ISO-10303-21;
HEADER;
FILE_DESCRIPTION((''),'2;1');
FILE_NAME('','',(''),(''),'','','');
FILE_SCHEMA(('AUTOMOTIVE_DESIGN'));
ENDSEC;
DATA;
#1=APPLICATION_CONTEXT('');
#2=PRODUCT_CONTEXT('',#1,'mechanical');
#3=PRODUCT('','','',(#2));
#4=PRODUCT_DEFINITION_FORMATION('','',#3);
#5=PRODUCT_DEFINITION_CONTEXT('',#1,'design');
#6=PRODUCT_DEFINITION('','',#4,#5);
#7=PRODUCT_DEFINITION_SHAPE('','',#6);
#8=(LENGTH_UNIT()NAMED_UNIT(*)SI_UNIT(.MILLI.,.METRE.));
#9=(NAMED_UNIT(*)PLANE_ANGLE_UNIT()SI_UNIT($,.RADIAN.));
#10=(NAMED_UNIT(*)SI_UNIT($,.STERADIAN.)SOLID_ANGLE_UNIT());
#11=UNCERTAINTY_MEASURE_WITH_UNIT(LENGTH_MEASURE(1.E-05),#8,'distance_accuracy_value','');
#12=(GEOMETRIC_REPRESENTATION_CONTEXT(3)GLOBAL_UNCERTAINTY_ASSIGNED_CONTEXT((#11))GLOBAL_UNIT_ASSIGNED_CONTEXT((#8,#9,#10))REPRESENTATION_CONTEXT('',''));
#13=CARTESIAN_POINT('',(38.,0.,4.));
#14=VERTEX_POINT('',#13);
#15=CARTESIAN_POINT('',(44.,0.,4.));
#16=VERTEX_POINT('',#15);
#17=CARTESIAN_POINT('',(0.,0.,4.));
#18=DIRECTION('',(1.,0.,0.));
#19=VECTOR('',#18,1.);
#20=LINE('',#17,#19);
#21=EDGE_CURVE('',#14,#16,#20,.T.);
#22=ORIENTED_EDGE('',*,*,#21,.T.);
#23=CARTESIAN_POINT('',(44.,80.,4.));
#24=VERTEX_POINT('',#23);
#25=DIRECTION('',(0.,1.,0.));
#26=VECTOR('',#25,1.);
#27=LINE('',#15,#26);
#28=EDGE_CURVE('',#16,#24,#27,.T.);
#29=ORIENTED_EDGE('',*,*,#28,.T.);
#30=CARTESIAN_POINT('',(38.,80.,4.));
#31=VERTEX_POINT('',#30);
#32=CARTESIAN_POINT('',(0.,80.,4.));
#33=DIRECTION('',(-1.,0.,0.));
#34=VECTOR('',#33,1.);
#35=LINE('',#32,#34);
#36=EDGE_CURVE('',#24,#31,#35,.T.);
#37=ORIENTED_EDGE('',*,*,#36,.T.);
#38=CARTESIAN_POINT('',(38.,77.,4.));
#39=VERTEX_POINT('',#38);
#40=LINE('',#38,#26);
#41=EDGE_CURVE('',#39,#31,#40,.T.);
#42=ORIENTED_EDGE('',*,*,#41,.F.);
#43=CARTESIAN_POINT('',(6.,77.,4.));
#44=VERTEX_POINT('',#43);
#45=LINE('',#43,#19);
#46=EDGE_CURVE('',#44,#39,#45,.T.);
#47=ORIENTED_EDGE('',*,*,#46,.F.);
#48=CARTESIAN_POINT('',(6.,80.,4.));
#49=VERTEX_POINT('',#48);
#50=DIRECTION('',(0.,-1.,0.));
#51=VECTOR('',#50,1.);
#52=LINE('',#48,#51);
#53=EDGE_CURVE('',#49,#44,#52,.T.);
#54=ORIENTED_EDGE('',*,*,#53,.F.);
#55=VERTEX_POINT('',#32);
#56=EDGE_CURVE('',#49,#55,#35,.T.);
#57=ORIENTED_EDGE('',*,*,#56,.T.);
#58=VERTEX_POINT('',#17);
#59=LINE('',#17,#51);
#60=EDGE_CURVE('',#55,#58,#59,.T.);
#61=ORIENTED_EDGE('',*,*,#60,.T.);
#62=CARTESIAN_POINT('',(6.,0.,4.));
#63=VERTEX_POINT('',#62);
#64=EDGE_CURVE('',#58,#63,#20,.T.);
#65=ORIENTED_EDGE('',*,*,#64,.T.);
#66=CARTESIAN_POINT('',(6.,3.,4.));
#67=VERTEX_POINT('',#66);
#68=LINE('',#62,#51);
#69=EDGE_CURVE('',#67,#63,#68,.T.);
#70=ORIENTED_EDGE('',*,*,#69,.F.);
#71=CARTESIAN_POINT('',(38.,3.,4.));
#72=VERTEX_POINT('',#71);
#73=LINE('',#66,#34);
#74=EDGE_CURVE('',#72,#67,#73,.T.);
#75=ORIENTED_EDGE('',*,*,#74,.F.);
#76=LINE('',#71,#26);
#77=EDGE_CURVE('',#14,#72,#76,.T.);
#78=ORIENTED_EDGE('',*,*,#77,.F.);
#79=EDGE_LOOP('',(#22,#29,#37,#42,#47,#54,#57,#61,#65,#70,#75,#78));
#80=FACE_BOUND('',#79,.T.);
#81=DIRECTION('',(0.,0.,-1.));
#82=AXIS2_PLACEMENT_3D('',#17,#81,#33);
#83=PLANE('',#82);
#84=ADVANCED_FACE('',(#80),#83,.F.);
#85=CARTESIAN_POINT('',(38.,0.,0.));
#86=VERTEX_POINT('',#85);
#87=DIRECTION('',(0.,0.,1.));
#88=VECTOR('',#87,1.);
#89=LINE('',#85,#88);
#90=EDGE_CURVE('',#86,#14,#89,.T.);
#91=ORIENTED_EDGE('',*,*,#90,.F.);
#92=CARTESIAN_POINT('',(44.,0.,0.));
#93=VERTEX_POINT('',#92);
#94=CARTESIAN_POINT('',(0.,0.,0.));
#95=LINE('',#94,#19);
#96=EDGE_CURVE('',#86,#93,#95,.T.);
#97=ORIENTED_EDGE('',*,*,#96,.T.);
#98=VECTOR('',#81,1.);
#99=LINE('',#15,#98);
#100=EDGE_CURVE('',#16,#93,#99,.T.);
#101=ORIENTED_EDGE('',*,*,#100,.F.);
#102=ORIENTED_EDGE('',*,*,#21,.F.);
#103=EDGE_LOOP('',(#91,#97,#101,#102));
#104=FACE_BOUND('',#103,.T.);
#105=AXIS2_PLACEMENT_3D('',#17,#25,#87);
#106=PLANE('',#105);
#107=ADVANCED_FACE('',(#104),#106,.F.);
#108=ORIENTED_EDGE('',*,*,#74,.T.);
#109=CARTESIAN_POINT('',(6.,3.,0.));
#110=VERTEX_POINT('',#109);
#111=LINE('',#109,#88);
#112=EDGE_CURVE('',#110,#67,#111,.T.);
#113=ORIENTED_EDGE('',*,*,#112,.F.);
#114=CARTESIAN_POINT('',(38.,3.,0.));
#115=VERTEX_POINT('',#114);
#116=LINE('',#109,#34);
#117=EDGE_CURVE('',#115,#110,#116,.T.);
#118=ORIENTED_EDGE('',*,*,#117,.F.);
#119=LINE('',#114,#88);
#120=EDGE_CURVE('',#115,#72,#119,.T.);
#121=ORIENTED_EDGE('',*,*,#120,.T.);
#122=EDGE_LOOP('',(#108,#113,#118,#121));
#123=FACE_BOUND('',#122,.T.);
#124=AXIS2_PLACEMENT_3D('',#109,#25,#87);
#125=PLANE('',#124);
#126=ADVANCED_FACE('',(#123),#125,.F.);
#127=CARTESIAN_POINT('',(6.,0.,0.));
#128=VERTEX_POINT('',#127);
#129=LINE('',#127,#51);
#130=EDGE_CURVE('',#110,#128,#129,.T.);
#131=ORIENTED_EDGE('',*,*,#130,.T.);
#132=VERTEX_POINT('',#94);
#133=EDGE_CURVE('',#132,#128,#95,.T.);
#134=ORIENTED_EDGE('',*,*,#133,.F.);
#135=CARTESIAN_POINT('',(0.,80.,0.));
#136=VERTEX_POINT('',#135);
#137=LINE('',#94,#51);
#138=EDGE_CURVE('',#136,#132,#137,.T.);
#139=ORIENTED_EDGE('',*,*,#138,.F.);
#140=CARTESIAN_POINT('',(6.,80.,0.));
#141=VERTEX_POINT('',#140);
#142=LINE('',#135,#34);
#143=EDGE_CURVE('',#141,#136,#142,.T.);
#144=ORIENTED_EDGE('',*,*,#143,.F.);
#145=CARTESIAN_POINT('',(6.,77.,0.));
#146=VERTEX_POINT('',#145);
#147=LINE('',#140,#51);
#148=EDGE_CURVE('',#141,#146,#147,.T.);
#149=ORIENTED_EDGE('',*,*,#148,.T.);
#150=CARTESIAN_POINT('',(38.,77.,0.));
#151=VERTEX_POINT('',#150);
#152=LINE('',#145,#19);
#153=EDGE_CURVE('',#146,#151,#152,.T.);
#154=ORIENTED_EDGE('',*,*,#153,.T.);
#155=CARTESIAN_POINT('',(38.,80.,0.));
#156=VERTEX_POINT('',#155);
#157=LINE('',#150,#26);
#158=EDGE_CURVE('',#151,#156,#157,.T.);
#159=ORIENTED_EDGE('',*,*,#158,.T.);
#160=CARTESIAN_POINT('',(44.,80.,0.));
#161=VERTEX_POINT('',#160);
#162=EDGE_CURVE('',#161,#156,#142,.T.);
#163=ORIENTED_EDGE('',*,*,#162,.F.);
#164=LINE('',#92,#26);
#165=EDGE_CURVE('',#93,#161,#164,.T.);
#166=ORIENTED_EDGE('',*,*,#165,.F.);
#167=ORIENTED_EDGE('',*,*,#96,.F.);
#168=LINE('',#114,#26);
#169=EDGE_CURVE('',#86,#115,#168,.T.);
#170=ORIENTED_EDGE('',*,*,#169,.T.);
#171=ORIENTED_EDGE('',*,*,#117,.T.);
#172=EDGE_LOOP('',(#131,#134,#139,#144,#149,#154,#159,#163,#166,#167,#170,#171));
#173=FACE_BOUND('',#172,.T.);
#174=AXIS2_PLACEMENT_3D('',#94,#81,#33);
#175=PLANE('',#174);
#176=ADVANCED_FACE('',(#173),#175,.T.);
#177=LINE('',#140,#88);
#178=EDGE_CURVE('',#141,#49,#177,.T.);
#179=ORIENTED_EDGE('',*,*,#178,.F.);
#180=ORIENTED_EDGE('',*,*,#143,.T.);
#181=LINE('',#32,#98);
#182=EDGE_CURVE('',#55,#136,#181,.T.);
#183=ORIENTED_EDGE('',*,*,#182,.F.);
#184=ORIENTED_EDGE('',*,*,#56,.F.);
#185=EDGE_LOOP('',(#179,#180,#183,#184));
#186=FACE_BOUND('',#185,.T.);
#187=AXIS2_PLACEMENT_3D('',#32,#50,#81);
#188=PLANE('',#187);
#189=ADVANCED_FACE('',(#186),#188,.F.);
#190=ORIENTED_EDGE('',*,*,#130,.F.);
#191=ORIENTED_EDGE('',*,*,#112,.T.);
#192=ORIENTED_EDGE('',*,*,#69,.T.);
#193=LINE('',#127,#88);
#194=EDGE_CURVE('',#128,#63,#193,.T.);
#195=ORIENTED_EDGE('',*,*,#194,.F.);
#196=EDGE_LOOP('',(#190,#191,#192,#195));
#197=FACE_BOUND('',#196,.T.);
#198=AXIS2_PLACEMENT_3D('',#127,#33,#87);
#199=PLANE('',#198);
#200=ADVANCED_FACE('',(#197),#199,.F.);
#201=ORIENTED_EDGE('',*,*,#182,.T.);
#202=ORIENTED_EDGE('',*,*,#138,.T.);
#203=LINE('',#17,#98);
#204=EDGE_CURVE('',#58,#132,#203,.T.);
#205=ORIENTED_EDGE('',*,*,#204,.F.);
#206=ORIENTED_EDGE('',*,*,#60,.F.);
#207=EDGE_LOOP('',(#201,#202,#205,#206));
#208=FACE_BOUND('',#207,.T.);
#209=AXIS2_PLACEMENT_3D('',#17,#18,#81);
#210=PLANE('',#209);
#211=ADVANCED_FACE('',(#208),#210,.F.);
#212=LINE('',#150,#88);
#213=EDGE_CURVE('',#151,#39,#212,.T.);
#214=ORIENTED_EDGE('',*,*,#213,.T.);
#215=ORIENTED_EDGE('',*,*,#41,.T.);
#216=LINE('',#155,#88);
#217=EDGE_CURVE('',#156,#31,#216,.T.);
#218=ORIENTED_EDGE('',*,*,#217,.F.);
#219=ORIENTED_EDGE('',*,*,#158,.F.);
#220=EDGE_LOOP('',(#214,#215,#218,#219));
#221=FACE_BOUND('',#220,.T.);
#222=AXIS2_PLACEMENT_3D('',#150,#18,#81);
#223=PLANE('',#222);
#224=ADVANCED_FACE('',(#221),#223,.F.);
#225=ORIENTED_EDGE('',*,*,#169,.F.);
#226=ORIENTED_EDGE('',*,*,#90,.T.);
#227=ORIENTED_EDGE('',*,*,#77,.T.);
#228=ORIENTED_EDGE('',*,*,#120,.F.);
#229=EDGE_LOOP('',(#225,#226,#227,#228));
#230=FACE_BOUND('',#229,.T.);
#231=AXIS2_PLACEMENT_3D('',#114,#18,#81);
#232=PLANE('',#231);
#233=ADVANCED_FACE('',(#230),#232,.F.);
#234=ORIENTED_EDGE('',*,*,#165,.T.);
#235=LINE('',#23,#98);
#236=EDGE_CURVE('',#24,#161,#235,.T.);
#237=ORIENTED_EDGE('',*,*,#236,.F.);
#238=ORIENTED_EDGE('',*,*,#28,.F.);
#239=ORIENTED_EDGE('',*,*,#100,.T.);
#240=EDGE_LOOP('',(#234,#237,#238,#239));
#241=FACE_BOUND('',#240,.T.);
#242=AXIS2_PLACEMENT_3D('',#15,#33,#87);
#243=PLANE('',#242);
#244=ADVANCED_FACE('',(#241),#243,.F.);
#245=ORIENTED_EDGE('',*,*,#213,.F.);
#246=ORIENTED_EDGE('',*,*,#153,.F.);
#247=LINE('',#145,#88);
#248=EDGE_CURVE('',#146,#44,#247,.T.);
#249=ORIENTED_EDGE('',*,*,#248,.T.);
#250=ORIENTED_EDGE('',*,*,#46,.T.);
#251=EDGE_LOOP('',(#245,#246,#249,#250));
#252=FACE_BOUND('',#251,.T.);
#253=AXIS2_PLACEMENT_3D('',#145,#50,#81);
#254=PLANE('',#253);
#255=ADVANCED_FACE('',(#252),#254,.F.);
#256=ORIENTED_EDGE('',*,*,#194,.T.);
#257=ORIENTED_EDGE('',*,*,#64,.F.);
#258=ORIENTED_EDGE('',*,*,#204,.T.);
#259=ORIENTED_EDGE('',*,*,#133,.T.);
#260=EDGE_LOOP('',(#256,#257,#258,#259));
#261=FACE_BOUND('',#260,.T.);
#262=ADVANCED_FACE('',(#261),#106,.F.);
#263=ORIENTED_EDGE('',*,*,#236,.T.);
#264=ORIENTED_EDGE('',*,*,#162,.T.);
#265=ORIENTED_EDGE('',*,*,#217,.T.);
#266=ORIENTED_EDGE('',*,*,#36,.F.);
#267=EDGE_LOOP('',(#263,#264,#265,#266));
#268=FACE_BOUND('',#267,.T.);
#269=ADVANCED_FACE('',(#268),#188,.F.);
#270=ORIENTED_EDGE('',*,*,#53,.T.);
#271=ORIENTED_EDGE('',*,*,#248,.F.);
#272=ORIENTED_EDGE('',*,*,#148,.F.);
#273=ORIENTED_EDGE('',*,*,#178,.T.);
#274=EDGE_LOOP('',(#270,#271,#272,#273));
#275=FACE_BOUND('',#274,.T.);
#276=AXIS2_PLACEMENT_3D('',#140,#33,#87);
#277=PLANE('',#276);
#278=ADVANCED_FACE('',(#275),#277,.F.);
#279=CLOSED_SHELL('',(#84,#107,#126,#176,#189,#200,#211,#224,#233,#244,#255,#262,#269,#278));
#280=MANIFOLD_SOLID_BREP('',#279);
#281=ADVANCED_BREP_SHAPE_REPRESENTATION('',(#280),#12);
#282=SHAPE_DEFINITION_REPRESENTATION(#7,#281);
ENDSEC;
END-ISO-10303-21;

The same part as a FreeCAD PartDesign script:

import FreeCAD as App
import Part
import Sketcher

V = App.Vector
Q = App.Units.Quantity

doc = App.newDocument("Part")
body = doc.addObject("PartDesign::Body", "Body")

# Sketch on XY plane
sketch1 = body.newObject("Sketcher::SketchObject", "Sketch")
sketch1.AttachmentSupport = (doc.getObject("XY_Plane"), [""])
sketch1.MapMode = "FlatFace"
sketch1.addGeometry(Part.LineSegment(V(0, 80, 0), V(0, 0, 0)), False)
sketch1.addGeometry(Part.LineSegment(V(0, 0, 0), V(44, 0, 0)), False)
sketch1.addGeometry(Part.LineSegment(V(44, 0, 0), V(44, 80, 0)), False)
sketch1.addGeometry(Part.LineSegment(V(44, 80, 0), V(0, 80, 0)), False)
sketch1.addConstraint(Sketcher.Constraint("Coincident", 0, 2, 1, 1))
sketch1.addConstraint(Sketcher.Constraint("Coincident", 1, 2, 2, 1))
sketch1.addConstraint(Sketcher.Constraint("Coincident", 2, 2, 3, 1))
sketch1.addConstraint(Sketcher.Constraint("Coincident", 3, 2, 0, 1))
sketch1.addConstraint(Sketcher.Constraint("Vertical", 0))
sketch1.addConstraint(Sketcher.Constraint("Horizontal", 1))
sketch1.addConstraint(Sketcher.Constraint("Vertical", 2))
sketch1.addConstraint(Sketcher.Constraint("Horizontal", 3))
sketch1.addConstraint(Sketcher.Constraint("Coincident", 0, 2, -1, 1))
sketch1.addConstraint(Sketcher.Constraint("DistanceX", 1, 1, 1, 2, Q("44 mm")))
sketch1.addConstraint(Sketcher.Constraint("DistanceY", 0, 2, 0, 1, Q("80 mm")))
pad1 = body.newObject("PartDesign::Pad", "Pad")
pad1.Profile = sketch1
pad1.Length = 4

# Sketch on XY plane
sketch2 = body.newObject("Sketcher::SketchObject", "Sketch001")
sketch2.AttachmentSupport = (doc.getObject("XY_Plane"), [""])
sketch2.MapMode = "FlatFace"
sketch2.AttachmentOffset = App.Placement(V(0, 0, 4), App.Rotation())
sketch2.addGeometry(Part.LineSegment(V(6, 80, 0), V(6, 77, 0)), False)
sketch2.addGeometry(Part.LineSegment(V(6, 77, 0), V(38, 77, 0)), False)
sketch2.addGeometry(Part.LineSegment(V(38, 77, 0), V(38, 80, 0)), False)
sketch2.addGeometry(Part.LineSegment(V(38, 80, 0), V(6, 80, 0)), False)
sketch2.addGeometry(Part.LineSegment(V(6, 3, 0), V(6, 0, 0)), False)
sketch2.addGeometry(Part.LineSegment(V(6, 0, 0), V(38, 0, 0)), False)
sketch2.addGeometry(Part.LineSegment(V(38, 0, 0), V(38, 3, 0)), False)
sketch2.addGeometry(Part.LineSegment(V(38, 3, 0), V(6, 3, 0)), False)
sketch2.addConstraint(Sketcher.Constraint("Coincident", 0, 2, 1, 1))
sketch2.addConstraint(Sketcher.Constraint("Coincident", 1, 2, 2, 1))
sketch2.addConstraint(Sketcher.Constraint("Coincident", 2, 2, 3, 1))
sketch2.addConstraint(Sketcher.Constraint("Coincident", 3, 2, 0, 1))
sketch2.addConstraint(Sketcher.Constraint("Coincident", 4, 2, 5, 1))
sketch2.addConstraint(Sketcher.Constraint("Coincident", 5, 2, 6, 1))
sketch2.addConstraint(Sketcher.Constraint("Coincident", 6, 2, 7, 1))
sketch2.addConstraint(Sketcher.Constraint("Coincident", 7, 2, 4, 1))
sketch2.addConstraint(Sketcher.Constraint("Vertical", 0))
sketch2.addConstraint(Sketcher.Constraint("Horizontal", 1))
sketch2.addConstraint(Sketcher.Constraint("Vertical", 2))
sketch2.addConstraint(Sketcher.Constraint("Horizontal", 3))
sketch2.addConstraint(Sketcher.Constraint("Vertical", 4))
sketch2.addConstraint(Sketcher.Constraint("Horizontal", 5))
sketch2.addConstraint(Sketcher.Constraint("Vertical", 6))
sketch2.addConstraint(Sketcher.Constraint("Horizontal", 7))
sketch2.addConstraint(Sketcher.Constraint("PointOnObject", 4, 2, -1))
sketch2.addConstraint(Sketcher.Constraint("Vertical", 3, 2, 4, 2))
sketch2.addConstraint(Sketcher.Constraint("Vertical", 2, 2, 5, 2))
sketch2.addConstraint(Sketcher.Constraint("Equal", 2, 4))
sketch2.addConstraint(Sketcher.Constraint("DistanceX", 1, 1, 1, 2, Q("32 mm")))
sketch2.addConstraint(Sketcher.Constraint("DistanceY", 0, 2, 0, 1, Q("3 mm")))
sketch2.addConstraint(Sketcher.Constraint("DistanceX", -1, 1, 0, 2, Q("6 mm")))
sketch2.addConstraint(Sketcher.Constraint("DistanceY", -1, 1, 0, 2, Q("77 mm")))
pocket1 = body.newObject("PartDesign::Pocket", "Pocket")
pocket1.Profile = sketch2
pocket1.Type = "ThroughAll"

doc.recompute()
